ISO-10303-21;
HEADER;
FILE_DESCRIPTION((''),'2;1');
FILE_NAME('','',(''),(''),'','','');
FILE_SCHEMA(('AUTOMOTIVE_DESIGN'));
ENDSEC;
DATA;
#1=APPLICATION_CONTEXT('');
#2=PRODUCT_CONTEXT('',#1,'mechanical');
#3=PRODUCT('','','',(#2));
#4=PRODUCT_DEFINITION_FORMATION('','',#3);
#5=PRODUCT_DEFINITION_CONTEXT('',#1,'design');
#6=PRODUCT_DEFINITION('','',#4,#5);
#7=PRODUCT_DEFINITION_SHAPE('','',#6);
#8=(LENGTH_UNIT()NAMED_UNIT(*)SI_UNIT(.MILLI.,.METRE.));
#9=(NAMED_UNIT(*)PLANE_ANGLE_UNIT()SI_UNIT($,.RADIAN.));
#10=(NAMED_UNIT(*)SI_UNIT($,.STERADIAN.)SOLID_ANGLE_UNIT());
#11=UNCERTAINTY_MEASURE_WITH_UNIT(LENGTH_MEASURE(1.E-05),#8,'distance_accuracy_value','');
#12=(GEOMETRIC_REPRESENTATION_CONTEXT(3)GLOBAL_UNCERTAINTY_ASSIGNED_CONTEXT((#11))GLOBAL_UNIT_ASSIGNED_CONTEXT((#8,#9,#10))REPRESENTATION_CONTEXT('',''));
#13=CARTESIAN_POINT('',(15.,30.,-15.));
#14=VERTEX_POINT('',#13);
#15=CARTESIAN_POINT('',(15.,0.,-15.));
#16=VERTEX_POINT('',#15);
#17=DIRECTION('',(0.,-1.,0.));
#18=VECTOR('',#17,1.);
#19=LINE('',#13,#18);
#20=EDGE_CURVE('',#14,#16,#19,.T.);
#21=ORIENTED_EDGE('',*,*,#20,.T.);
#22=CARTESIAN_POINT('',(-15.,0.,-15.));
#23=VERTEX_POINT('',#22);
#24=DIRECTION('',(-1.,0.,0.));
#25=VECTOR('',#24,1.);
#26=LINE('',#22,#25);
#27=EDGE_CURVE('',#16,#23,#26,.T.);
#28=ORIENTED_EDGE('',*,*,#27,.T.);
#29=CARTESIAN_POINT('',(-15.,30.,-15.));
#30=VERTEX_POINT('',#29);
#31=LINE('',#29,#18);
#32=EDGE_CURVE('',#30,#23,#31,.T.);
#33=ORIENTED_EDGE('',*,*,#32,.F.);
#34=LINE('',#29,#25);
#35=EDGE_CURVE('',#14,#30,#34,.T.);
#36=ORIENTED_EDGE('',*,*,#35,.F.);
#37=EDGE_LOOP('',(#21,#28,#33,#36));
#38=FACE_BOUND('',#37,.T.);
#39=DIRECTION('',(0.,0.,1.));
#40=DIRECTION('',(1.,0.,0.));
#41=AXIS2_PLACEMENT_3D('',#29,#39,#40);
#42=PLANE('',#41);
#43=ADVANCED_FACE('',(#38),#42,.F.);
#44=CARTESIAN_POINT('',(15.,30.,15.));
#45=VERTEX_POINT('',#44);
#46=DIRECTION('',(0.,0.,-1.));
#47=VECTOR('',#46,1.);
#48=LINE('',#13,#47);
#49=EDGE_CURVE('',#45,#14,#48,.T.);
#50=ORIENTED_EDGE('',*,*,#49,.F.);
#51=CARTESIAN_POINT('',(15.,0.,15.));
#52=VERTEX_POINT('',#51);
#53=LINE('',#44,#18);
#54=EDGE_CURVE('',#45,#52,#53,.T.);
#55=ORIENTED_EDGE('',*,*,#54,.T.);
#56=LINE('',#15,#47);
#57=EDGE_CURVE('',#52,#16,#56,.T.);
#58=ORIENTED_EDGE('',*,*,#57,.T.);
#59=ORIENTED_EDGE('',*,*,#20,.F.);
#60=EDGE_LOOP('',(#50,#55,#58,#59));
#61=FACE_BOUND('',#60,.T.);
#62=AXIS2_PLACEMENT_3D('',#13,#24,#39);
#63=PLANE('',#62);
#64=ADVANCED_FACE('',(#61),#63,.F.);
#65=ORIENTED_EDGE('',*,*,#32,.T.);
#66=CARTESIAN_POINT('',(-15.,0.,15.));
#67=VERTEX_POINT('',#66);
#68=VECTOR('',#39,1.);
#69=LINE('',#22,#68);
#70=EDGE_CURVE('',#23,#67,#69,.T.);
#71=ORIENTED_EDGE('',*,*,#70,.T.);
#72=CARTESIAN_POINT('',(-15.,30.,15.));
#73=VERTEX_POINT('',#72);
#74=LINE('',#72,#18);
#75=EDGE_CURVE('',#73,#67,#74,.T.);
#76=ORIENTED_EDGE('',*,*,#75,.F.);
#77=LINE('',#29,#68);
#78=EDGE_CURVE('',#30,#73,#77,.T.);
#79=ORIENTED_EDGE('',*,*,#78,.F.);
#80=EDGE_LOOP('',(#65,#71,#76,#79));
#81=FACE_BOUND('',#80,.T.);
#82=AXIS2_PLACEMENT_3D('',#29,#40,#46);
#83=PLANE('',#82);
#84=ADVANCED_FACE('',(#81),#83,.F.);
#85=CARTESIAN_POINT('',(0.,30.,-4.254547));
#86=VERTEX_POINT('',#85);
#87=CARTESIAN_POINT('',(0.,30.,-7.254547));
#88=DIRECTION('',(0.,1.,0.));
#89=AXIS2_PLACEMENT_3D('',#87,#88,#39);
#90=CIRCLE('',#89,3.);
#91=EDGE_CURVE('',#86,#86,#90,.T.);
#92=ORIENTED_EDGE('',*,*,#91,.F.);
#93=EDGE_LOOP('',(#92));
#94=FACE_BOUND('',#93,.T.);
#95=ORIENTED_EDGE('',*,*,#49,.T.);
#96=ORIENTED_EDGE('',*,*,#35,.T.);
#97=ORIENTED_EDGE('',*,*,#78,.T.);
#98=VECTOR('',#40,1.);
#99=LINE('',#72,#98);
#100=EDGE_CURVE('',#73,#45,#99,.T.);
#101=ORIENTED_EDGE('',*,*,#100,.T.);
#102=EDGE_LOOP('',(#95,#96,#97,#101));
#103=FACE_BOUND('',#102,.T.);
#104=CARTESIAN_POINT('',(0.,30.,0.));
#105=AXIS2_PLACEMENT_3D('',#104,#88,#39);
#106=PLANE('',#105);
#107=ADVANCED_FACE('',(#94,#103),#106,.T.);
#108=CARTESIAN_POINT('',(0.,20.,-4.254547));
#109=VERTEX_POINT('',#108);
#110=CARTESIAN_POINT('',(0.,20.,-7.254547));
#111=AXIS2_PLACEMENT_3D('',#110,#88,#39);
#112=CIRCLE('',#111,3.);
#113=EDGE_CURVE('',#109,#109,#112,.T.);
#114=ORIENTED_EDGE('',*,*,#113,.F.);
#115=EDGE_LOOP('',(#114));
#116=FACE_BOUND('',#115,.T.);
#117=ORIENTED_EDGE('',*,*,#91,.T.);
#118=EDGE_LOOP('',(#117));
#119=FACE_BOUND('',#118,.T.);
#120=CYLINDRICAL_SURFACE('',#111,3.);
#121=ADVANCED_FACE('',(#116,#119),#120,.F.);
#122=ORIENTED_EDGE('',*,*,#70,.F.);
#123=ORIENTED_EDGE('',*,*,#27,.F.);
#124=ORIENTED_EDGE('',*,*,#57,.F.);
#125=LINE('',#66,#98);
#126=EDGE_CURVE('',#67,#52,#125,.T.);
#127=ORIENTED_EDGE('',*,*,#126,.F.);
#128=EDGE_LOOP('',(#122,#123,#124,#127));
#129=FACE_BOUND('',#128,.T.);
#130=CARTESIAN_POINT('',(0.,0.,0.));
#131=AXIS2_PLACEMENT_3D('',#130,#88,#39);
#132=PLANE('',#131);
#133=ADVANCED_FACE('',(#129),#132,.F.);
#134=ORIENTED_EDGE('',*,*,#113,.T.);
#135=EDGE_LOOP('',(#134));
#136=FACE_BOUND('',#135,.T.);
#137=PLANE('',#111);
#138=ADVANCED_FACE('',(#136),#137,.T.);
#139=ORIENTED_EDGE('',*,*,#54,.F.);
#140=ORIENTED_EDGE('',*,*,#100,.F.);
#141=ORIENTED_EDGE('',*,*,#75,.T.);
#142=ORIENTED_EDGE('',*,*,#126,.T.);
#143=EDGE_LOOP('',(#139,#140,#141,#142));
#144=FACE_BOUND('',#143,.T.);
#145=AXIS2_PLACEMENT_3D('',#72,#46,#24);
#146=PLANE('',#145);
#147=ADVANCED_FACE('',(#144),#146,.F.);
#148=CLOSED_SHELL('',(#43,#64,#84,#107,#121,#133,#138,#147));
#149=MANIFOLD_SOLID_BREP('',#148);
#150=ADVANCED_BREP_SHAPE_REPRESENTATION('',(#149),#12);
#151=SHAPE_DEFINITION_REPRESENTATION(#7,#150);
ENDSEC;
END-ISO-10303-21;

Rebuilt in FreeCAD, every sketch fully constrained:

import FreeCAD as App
import Part
import Sketcher

V = App.Vector


def add_polygon(sketch, points):
    """Adds a closed chain of lines whose ends are joined by coincident constraints."""
    first, n = sketch.GeometryCount, len(points)
    for a, b in zip(points, points[1:] + points[:1]):
        sketch.addGeometry(Part.LineSegment(App.Vector(*a, 0), App.Vector(*b, 0)), False)
    for i in range(n):
        sketch.addConstraint(Sketcher.Constraint("Coincident", first + i, 2, first + (i + 1) % n, 1))

doc = App.newDocument("Part")
body = doc.addObject("PartDesign::Body", "Body")

# Sketch on XZ plane
sketch1 = doc.addObject("Sketcher::SketchObject", "Sketch")
body.addObject(sketch1)
sketch1.AttachmentSupport = (doc.XZ_Plane, [""])
sketch1.MapMode = "FlatFace"
add_polygon(sketch1, [(-15, -15), (-15, 15), (15, 15), (15, -15)])  # lines 0-3
sketch1.addConstraint([
    Sketcher.Constraint("Vertical", 0),
    Sketcher.Constraint("Horizontal", 1),
    Sketcher.Constraint("Vertical", 2),
    Sketcher.Constraint("Horizontal", 3),
    Sketcher.Constraint("Symmetric", 0, 2, 2, 2, -1, 1),
    Sketcher.Constraint("Equal", 3, 0),
    Sketcher.Constraint("DistanceX", 1, 1, 1, 2, 30.0),
])
pad1 = doc.addObject("PartDesign::Pad", "Pad")
body.addObject(pad1)
pad1.Profile = sketch1
pad1.Length = 30
pad1.Reversed = True

# Sketch on XZ plane
sketch2 = doc.addObject("Sketcher::SketchObject", "Sketch001")
body.addObject(sketch2)
sketch2.AttachmentSupport = (doc.XZ_Plane, [""])
sketch2.MapMode = "FlatFace"
sketch2.AttachmentOffset = App.Placement(V(0, 0, -30), App.Rotation())
sketch2.addGeometry(Part.Circle(V(0, -7.3, 0), V(0, 0, 1), 3), False)
sketch2.addConstraint([
    Sketcher.Constraint("PointOnObject", 0, 3, -2),
    Sketcher.Constraint("Diameter", 0, 6.0),
    Sketcher.Constraint("DistanceY", 0, 3, -1, 1, 7.254547),
])
pocket1 = doc.addObject("PartDesign::Pocket", "Pocket")
body.addObject(pocket1)
pocket1.Profile = sketch2
pocket1.Length = 10
pocket1.Reversed = True

doc.recompute()
